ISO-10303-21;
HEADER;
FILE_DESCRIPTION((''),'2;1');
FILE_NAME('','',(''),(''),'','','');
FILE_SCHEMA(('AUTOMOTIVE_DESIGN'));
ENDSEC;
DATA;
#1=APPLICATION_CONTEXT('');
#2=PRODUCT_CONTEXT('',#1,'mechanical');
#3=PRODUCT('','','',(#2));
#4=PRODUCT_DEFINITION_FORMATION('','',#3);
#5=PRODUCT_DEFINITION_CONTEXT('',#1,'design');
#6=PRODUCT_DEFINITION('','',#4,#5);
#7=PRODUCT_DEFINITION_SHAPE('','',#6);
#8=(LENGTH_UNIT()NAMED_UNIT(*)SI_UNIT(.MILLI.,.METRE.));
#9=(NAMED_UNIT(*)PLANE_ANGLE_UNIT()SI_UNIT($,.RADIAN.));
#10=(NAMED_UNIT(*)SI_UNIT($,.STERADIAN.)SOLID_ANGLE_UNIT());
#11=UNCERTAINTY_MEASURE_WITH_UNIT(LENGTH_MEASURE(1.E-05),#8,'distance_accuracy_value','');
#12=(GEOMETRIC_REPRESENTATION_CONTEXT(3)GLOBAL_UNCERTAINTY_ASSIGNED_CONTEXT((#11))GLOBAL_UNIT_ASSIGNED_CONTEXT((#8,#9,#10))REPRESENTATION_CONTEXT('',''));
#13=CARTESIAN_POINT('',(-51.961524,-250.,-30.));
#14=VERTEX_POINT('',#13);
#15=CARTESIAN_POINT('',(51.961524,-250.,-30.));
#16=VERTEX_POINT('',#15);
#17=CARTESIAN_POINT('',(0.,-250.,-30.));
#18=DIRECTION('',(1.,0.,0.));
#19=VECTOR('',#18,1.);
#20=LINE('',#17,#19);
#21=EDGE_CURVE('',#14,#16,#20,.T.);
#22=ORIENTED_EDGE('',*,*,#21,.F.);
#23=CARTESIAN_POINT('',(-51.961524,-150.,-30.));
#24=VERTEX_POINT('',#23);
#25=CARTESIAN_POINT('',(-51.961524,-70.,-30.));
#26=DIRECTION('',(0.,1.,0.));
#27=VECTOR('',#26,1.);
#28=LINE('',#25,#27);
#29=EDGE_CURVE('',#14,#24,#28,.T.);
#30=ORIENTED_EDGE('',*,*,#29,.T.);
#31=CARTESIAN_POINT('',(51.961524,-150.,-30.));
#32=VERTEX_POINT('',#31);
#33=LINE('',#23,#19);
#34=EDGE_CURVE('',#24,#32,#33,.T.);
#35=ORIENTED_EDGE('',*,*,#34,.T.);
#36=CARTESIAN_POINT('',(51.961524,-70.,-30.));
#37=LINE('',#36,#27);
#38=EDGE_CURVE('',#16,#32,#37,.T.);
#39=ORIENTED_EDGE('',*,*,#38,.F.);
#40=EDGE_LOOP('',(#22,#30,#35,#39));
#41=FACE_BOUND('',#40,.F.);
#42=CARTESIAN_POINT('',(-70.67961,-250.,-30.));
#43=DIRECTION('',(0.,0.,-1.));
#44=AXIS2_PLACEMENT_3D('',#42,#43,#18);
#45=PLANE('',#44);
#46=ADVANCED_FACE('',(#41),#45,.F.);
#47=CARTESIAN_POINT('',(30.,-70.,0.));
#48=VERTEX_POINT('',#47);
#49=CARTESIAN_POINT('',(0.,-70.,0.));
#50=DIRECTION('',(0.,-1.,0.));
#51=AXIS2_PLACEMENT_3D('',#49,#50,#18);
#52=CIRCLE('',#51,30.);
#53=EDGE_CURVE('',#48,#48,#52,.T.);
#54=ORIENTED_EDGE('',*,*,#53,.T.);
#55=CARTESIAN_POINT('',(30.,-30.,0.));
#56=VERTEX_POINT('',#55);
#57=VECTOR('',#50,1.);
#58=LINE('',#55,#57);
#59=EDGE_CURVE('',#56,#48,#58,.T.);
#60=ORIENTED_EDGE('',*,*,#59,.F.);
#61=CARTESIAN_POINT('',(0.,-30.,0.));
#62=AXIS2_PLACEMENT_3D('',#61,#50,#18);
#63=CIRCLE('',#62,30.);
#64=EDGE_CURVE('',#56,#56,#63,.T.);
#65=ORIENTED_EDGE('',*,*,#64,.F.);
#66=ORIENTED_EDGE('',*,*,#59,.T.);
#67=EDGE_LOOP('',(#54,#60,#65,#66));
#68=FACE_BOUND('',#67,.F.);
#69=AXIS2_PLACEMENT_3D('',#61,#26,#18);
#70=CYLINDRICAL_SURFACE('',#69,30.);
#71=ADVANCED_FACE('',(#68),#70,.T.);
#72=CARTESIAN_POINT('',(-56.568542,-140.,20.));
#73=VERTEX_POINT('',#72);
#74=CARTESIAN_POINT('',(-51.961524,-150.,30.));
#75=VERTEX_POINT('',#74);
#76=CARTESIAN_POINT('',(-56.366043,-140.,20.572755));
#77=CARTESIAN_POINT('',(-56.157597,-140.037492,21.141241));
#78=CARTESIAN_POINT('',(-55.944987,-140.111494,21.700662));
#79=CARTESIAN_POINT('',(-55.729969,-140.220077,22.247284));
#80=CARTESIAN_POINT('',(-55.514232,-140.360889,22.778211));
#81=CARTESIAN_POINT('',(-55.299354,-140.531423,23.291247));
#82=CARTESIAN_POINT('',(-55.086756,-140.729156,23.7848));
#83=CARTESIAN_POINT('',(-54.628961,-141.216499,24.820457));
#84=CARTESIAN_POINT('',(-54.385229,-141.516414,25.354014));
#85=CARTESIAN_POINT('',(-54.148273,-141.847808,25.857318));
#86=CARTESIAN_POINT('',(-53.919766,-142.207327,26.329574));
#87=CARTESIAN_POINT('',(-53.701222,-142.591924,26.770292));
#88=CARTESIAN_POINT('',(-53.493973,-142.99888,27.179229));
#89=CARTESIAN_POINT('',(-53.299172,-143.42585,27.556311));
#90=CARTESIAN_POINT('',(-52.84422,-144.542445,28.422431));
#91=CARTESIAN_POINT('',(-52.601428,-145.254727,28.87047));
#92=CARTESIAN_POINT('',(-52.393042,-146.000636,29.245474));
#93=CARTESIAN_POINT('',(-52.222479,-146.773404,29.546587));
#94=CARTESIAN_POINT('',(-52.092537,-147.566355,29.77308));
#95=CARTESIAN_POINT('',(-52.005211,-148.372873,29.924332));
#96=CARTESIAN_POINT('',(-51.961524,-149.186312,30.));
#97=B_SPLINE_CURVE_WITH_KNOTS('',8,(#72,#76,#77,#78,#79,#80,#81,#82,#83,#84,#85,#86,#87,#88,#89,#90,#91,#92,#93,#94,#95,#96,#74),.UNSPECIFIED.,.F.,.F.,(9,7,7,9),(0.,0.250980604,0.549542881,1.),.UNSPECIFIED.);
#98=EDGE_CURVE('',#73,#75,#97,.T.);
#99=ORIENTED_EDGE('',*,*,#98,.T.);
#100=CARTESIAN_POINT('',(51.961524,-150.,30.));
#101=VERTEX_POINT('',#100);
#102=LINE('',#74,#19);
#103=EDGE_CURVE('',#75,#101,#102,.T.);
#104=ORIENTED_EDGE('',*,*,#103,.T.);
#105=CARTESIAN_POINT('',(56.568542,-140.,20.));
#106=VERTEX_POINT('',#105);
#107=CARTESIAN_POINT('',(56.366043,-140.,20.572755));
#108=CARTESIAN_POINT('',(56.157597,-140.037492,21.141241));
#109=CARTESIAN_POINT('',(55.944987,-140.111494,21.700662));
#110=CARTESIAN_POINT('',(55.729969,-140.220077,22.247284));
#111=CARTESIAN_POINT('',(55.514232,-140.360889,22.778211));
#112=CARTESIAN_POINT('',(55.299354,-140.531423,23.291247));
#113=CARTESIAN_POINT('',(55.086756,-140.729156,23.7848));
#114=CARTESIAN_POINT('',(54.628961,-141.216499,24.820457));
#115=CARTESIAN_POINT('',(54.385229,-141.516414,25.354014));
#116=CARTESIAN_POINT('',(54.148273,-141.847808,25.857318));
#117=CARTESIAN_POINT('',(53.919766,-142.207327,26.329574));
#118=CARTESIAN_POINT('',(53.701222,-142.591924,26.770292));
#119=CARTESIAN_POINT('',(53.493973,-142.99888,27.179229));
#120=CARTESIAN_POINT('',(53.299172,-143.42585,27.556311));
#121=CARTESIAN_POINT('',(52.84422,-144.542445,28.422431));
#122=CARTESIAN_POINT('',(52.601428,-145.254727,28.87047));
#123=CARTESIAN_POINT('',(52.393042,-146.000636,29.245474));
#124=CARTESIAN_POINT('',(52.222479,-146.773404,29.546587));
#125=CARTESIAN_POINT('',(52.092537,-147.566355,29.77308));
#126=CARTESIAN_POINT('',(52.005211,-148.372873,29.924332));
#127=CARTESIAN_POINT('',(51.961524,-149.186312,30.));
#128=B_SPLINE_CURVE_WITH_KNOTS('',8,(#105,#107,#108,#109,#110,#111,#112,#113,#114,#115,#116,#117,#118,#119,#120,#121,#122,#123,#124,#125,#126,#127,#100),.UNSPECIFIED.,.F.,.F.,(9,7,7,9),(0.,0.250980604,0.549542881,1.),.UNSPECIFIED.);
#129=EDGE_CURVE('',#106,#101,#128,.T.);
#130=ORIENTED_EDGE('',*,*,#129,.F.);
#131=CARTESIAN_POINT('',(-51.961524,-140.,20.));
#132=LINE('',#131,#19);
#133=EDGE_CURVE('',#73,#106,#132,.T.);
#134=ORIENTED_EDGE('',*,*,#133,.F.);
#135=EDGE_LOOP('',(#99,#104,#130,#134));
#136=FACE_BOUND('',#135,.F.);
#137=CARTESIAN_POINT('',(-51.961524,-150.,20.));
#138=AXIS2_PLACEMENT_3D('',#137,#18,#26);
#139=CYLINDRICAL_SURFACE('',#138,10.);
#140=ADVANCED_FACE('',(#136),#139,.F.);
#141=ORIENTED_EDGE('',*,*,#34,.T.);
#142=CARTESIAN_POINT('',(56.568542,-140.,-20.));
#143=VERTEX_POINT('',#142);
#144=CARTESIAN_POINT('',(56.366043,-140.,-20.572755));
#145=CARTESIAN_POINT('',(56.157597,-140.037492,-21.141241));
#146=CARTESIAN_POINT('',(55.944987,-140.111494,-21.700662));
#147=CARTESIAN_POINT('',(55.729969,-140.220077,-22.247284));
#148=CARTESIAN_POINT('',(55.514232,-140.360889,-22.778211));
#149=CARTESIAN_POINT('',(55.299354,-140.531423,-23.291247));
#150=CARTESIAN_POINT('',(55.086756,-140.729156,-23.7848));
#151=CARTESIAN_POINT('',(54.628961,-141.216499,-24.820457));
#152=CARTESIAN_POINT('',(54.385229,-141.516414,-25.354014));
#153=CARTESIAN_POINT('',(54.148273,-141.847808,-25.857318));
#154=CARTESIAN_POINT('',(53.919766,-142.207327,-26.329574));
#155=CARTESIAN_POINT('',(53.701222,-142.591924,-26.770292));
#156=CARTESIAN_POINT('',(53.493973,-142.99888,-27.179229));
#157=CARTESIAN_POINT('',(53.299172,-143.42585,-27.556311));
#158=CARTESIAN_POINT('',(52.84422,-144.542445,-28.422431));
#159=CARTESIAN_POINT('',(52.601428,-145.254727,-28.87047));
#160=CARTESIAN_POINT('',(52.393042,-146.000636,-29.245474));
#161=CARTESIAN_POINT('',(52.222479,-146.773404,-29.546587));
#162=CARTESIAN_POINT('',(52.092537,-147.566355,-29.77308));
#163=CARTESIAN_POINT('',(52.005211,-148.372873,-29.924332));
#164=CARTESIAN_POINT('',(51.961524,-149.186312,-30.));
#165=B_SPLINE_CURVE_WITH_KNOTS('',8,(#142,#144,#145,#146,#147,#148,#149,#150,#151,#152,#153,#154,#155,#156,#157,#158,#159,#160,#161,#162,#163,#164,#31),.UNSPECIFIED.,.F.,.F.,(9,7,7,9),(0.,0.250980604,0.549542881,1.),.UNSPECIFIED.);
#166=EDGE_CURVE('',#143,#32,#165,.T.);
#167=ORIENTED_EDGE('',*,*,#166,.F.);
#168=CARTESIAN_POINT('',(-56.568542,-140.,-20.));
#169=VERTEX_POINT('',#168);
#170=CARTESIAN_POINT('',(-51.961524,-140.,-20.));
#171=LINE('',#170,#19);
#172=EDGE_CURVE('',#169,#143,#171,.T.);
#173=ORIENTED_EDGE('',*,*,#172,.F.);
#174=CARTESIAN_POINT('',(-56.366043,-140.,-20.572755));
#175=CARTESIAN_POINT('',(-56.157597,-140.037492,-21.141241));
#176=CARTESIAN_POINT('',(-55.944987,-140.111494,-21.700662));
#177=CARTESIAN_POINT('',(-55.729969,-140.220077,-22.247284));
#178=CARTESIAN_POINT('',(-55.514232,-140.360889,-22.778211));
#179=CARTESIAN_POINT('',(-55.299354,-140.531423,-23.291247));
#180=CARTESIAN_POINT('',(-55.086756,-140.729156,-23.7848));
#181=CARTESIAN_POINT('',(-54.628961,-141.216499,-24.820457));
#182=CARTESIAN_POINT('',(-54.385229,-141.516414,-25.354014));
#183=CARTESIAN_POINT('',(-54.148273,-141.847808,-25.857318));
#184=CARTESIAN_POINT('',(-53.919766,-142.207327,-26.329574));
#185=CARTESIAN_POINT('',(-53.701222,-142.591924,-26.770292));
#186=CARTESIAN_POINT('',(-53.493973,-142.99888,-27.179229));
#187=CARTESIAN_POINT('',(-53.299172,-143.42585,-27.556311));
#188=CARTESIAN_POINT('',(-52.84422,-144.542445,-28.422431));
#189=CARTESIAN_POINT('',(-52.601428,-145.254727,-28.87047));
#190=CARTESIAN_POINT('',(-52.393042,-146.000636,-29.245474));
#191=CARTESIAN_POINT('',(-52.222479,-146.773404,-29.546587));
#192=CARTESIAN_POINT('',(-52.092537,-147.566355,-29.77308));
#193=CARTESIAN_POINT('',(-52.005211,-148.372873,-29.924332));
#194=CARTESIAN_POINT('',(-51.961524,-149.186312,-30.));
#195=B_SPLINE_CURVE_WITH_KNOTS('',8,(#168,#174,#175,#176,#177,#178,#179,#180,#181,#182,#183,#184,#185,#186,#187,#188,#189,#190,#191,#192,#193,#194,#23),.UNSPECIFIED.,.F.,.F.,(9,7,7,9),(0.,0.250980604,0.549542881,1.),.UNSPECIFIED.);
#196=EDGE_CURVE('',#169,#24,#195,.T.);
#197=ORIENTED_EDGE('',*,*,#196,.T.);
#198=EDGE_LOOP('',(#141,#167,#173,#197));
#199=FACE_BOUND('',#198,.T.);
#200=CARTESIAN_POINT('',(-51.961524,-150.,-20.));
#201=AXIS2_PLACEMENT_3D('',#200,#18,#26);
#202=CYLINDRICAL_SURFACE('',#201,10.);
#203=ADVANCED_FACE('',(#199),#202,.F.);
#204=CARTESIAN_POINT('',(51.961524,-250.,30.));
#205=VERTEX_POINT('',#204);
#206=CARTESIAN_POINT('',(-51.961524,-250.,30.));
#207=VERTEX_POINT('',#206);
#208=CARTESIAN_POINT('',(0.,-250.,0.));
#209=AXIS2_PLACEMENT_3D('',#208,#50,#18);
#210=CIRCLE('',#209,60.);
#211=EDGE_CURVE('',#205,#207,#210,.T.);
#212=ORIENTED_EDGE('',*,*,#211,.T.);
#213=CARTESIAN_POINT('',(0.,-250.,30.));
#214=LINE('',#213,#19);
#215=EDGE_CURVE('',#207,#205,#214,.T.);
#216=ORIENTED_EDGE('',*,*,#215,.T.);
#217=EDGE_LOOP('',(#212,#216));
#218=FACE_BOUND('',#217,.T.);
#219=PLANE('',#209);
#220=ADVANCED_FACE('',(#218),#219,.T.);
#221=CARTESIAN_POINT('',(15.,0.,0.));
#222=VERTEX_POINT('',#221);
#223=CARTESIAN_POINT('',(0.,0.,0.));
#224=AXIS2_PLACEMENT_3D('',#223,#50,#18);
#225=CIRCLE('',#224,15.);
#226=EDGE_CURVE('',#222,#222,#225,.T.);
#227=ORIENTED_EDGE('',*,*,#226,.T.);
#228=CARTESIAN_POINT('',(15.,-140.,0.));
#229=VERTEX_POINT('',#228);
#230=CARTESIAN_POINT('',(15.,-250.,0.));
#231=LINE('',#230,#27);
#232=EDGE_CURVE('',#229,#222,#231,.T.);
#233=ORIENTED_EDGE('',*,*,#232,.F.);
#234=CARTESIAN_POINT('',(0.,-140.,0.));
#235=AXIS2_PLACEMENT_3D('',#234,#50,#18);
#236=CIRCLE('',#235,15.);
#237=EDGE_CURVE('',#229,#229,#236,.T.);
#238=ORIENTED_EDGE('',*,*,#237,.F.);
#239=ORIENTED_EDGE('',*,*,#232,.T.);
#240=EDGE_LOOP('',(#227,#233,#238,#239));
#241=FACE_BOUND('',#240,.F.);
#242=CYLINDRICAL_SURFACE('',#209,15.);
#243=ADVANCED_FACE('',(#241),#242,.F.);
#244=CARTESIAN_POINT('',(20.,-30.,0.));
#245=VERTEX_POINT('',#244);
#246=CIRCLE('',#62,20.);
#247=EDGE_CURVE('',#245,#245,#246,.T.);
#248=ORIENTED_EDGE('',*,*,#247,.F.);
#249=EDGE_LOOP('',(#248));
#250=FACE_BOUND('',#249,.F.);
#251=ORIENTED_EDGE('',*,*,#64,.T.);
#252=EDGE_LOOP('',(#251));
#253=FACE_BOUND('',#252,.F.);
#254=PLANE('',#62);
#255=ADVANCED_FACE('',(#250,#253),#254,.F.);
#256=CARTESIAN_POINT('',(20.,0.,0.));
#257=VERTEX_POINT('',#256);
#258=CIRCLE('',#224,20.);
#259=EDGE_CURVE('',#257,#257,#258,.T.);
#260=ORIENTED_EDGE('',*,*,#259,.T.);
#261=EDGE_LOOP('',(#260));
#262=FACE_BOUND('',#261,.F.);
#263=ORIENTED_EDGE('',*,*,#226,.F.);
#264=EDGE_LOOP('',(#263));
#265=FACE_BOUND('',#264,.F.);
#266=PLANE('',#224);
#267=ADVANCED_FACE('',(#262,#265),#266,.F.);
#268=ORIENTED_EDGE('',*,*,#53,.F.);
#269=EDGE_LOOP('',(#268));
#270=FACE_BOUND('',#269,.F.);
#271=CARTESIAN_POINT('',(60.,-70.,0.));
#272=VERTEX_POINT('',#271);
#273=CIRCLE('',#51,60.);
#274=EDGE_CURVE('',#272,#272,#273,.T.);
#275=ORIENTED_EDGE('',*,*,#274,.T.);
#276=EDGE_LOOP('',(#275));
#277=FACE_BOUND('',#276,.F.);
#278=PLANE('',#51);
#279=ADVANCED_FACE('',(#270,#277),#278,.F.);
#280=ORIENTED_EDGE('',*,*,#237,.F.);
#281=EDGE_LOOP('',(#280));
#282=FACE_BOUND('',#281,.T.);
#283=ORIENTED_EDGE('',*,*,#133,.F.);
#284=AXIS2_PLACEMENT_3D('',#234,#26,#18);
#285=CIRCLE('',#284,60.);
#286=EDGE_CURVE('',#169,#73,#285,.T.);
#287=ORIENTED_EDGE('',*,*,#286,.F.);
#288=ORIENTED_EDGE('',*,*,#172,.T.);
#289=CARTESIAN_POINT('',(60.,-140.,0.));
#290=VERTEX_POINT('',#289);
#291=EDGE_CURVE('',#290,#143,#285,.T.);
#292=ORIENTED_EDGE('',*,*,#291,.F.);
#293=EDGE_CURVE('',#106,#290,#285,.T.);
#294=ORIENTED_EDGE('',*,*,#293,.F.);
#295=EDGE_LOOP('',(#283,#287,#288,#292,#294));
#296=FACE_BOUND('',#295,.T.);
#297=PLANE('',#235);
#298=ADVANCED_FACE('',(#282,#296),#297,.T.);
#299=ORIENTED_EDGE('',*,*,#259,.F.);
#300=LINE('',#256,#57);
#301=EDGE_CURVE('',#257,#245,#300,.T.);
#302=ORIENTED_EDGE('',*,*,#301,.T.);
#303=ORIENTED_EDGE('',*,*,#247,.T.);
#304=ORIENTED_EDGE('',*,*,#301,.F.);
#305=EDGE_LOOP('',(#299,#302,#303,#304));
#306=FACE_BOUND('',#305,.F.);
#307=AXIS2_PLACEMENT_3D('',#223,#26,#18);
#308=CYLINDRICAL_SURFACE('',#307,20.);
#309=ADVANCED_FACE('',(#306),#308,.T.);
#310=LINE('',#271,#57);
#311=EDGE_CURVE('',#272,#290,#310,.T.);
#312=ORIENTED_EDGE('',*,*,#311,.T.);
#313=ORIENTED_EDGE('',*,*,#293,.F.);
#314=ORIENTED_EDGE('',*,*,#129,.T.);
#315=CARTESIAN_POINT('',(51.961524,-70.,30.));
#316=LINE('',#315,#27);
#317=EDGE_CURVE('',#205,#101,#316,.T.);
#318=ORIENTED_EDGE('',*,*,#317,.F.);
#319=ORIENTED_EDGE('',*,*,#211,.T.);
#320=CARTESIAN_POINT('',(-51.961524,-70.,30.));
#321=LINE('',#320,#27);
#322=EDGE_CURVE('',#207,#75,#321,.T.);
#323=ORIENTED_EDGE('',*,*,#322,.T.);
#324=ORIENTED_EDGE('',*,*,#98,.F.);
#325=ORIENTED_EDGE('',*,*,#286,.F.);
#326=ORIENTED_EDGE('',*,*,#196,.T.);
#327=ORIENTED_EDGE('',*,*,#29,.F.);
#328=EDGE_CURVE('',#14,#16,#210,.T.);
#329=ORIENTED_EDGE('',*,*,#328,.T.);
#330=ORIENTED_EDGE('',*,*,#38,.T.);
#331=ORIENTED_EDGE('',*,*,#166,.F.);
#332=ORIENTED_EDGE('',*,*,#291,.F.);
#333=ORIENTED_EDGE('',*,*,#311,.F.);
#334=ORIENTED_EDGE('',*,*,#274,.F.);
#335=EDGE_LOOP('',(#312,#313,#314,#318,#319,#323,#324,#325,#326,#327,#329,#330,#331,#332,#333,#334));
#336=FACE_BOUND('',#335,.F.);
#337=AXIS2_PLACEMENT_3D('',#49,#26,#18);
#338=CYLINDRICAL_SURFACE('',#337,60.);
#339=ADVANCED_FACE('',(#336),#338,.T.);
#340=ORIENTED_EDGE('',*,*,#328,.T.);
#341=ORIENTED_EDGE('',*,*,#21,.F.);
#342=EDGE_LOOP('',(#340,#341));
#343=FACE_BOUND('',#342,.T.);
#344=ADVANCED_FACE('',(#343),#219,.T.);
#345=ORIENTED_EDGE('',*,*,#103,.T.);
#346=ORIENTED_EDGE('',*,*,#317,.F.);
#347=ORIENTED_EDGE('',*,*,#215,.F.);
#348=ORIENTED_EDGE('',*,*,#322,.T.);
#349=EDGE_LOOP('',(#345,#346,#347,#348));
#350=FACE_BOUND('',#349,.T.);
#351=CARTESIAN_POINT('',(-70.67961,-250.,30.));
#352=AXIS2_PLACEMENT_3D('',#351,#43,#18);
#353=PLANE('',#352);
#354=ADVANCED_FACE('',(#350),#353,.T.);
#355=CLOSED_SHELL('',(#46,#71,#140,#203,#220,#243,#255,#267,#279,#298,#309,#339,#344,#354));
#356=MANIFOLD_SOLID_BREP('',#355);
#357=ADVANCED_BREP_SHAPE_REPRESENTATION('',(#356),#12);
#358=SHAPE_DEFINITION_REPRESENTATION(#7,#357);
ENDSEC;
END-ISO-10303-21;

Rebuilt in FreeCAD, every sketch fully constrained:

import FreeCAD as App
import Part
import Sketcher

V = App.Vector


def edges_at(feature, points):
    """Names of the edges that pass closest to the given points."""
    edges = feature.Shape.Edges
    near = lambda p: min(range(len(edges)), key=lambda i: edges[i].distToShape(Part.Vertex(*p))[0])
    return sorted({f"Edge{near(p) + 1}" for p in points})


def add_polygon(sketch, points):
    """Adds a closed chain of lines whose ends are joined by coincident constraints."""
    first, n = sketch.GeometryCount, len(points)
    for a, b in zip(points, points[1:] + points[:1]):
        sketch.addGeometry(Part.LineSegment(App.Vector(*a, 0), App.Vector(*b, 0)), False)
    for i in range(n):
        sketch.addConstraint(Sketcher.Constraint("Coincident", first + i, 2, first + (i + 1) % n, 1))

doc = App.newDocument("Part")
params = doc.addObject("Spreadsheet::Sheet", "Params")
for row, (alias, value) in enumerate([
    ("sketch1_diameter", "40 mm"),
    ("pad1_length", "30 mm"),
    ("sketch2_diameter", "60 mm"),
    ("pad2_length", "40 mm"),
    ("sketch3_diameter", "120 mm"),
    ("pad3_length", "180 mm"),
    ("sketch4_diameter", "30 mm"),
    ("pocket1_length", "250 mm"),
    ("sketch5_height", "60 mm"),
    ("pocket2_length", "110 mm"),
    ("fillet_radius", "10 mm"),
    ("fillet2_radius", "10 mm"),
], start=1):
    params.set(f"A{row}", alias)
    params.set(f"B{row}", "=" + value)
    params.setAlias(f"B{row}", alias)

body = doc.addObject("PartDesign::Body", "Body")

sketch1 = doc.addObject("Sketcher::SketchObject", "Sketch")
body.addObject(sketch1)
sketch1.AttachmentSupport = (doc.XZ_Plane, [""])
sketch1.MapMode = "FlatFace"
sketch1.addGeometry(Part.Circle(V(0, 0, 0), V(0, 0, 1), 20), False)
sketch1.addConstraint(Sketcher.Constraint("Coincident", 0, 3, -1, 1))
sketch1.addConstraint(Sketcher.Constraint("Diameter", 0, 40.0))
sketch1.setExpression("Constraints[1]", "Params.sketch1_diameter")
pad1 = doc.addObject("PartDesign::Pad", "Pad")
body.addObject(pad1)
pad1.Profile = sketch1
pad1.setExpression("Length", "Params.pad1_length")

sketch2 = doc.addObject("Sketcher::SketchObject", "Sketch001")
body.addObject(sketch2)
sketch2.AttachmentSupport = (doc.XZ_Plane, [""])
sketch2.MapMode = "FlatFace"
sketch2.AttachmentOffset = App.Placement(V(0, 0, 30), App.Rotation())
sketch2.addGeometry(Part.Circle(V(0, 0, 0), V(0, 0, 1), 30), False)
sketch2.addConstraint(Sketcher.Constraint("Coincident", 0, 3, -1, 1))
sketch2.addConstraint(Sketcher.Constraint("Diameter", 0, 60.0))
sketch2.setExpression("Constraints[1]", "Params.sketch2_diameter")
pad2 = doc.addObject("PartDesign::Pad", "Pad001")
body.addObject(pad2)
pad2.Profile = sketch2
pad2.setExpression("Length", "Params.pad2_length")

sketch3 = doc.addObject("Sketcher::SketchObject", "Sketch002")
body.addObject(sketch3)
sketch3.AttachmentSupport = (doc.XZ_Plane, [""])
sketch3.MapMode = "FlatFace"
sketch3.AttachmentOffset = App.Placement(V(0, 0, 70), App.Rotation())
sketch3.addGeometry(Part.Circle(V(0, 0, 0), V(0, 0, 1), 60), False)
sketch3.addConstraint(Sketcher.Constraint("Coincident", 0, 3, -1, 1))
sketch3.addConstraint(Sketcher.Constraint("Diameter", 0, 120.0))
sketch3.setExpression("Constraints[1]", "Params.sketch3_diameter")
pad3 = doc.addObject("PartDesign::Pad", "Pad002")
body.addObject(pad3)
pad3.Profile = sketch3
pad3.setExpression("Length", "Params.pad3_length")

sketch4 = doc.addObject("Sketcher::SketchObject", "Sketch003")
body.addObject(sketch4)
sketch4.AttachmentSupport = (doc.XZ_Plane, [""])
sketch4.MapMode = "FlatFace"
sketch4.AttachmentOffset = App.Placement(V(0, 0, 250), App.Rotation())
sketch4.addGeometry(Part.Circle(V(0, 0, 0), V(0, 0, 1), 15), False)
sketch4.addConstraint(Sketcher.Constraint("Coincident", 0, 3, -1, 1))
sketch4.addConstraint(Sketcher.Constraint("Diameter", 0, 30.0))
sketch4.setExpression("Constraints[1]", "Params.sketch4_diameter")
pocket1 = doc.addObject("PartDesign::Pocket", "Pocket")
body.addObject(pocket1)
pocket1.Profile = sketch4
pocket1.setExpression("Length", "Params.pocket1_length")

sketch5 = doc.addObject("Sketcher::SketchObject", "Sketch004")
body.addObject(sketch5)
sketch5.AttachmentSupport = (doc.XZ_Plane, [""])
sketch5.MapMode = "FlatFace"
sketch5.AttachmentOffset = App.Placement(V(0, 0, 250), App.Rotation())
add_polygon(sketch5, [(-70.67961, 30), (-70.67961, -30), (70.67961, -30), (70.67961, 30)])
sketch5.addConstraint(Sketcher.Constraint("Vertical", 0))
sketch5.addConstraint(Sketcher.Constraint("Horizontal", 1))
sketch5.addConstraint(Sketcher.Constraint("Vertical", 2))
sketch5.addConstraint(Sketcher.Constraint("Horizontal", 3))
sketch5.addConstraint(Sketcher.Constraint("Symmetric", 0, 2, 2, 2, -1, 1))
sketch5.addConstraint(Sketcher.Constraint("DistanceY", 0, 2, 0, 1, 60.0))
sketch5.addConstraint(Sketcher.Constraint("DistanceX", 1, 1, 1, 2, 141.35922))
sketch5.setExpression("Constraints[9]", "Params.sketch5_height")
pocket2 = doc.addObject("PartDesign::Pocket", "Pocket001")
body.addObject(pocket2)
pocket2.Profile = sketch5
pocket2.setExpression("Length", "Params.pocket2_length")
doc.recompute()

fillet = doc.addObject("PartDesign::Fillet", "Fillet")
body.addObject(fillet)
fillet.Base = (pocket2, edges_at(pocket2, [(0, -140, 30)]))
fillet.setExpression("Radius", "Params.fillet_radius")
doc.recompute()

fillet2 = doc.addObject("PartDesign::Fillet", "Fillet001")
body.addObject(fillet2)
fillet2.Base = (fillet, edges_at(fillet, [(0, -140, -30)]))
fillet2.setExpression("Radius", "Params.fillet2_radius")

doc.recompute()
